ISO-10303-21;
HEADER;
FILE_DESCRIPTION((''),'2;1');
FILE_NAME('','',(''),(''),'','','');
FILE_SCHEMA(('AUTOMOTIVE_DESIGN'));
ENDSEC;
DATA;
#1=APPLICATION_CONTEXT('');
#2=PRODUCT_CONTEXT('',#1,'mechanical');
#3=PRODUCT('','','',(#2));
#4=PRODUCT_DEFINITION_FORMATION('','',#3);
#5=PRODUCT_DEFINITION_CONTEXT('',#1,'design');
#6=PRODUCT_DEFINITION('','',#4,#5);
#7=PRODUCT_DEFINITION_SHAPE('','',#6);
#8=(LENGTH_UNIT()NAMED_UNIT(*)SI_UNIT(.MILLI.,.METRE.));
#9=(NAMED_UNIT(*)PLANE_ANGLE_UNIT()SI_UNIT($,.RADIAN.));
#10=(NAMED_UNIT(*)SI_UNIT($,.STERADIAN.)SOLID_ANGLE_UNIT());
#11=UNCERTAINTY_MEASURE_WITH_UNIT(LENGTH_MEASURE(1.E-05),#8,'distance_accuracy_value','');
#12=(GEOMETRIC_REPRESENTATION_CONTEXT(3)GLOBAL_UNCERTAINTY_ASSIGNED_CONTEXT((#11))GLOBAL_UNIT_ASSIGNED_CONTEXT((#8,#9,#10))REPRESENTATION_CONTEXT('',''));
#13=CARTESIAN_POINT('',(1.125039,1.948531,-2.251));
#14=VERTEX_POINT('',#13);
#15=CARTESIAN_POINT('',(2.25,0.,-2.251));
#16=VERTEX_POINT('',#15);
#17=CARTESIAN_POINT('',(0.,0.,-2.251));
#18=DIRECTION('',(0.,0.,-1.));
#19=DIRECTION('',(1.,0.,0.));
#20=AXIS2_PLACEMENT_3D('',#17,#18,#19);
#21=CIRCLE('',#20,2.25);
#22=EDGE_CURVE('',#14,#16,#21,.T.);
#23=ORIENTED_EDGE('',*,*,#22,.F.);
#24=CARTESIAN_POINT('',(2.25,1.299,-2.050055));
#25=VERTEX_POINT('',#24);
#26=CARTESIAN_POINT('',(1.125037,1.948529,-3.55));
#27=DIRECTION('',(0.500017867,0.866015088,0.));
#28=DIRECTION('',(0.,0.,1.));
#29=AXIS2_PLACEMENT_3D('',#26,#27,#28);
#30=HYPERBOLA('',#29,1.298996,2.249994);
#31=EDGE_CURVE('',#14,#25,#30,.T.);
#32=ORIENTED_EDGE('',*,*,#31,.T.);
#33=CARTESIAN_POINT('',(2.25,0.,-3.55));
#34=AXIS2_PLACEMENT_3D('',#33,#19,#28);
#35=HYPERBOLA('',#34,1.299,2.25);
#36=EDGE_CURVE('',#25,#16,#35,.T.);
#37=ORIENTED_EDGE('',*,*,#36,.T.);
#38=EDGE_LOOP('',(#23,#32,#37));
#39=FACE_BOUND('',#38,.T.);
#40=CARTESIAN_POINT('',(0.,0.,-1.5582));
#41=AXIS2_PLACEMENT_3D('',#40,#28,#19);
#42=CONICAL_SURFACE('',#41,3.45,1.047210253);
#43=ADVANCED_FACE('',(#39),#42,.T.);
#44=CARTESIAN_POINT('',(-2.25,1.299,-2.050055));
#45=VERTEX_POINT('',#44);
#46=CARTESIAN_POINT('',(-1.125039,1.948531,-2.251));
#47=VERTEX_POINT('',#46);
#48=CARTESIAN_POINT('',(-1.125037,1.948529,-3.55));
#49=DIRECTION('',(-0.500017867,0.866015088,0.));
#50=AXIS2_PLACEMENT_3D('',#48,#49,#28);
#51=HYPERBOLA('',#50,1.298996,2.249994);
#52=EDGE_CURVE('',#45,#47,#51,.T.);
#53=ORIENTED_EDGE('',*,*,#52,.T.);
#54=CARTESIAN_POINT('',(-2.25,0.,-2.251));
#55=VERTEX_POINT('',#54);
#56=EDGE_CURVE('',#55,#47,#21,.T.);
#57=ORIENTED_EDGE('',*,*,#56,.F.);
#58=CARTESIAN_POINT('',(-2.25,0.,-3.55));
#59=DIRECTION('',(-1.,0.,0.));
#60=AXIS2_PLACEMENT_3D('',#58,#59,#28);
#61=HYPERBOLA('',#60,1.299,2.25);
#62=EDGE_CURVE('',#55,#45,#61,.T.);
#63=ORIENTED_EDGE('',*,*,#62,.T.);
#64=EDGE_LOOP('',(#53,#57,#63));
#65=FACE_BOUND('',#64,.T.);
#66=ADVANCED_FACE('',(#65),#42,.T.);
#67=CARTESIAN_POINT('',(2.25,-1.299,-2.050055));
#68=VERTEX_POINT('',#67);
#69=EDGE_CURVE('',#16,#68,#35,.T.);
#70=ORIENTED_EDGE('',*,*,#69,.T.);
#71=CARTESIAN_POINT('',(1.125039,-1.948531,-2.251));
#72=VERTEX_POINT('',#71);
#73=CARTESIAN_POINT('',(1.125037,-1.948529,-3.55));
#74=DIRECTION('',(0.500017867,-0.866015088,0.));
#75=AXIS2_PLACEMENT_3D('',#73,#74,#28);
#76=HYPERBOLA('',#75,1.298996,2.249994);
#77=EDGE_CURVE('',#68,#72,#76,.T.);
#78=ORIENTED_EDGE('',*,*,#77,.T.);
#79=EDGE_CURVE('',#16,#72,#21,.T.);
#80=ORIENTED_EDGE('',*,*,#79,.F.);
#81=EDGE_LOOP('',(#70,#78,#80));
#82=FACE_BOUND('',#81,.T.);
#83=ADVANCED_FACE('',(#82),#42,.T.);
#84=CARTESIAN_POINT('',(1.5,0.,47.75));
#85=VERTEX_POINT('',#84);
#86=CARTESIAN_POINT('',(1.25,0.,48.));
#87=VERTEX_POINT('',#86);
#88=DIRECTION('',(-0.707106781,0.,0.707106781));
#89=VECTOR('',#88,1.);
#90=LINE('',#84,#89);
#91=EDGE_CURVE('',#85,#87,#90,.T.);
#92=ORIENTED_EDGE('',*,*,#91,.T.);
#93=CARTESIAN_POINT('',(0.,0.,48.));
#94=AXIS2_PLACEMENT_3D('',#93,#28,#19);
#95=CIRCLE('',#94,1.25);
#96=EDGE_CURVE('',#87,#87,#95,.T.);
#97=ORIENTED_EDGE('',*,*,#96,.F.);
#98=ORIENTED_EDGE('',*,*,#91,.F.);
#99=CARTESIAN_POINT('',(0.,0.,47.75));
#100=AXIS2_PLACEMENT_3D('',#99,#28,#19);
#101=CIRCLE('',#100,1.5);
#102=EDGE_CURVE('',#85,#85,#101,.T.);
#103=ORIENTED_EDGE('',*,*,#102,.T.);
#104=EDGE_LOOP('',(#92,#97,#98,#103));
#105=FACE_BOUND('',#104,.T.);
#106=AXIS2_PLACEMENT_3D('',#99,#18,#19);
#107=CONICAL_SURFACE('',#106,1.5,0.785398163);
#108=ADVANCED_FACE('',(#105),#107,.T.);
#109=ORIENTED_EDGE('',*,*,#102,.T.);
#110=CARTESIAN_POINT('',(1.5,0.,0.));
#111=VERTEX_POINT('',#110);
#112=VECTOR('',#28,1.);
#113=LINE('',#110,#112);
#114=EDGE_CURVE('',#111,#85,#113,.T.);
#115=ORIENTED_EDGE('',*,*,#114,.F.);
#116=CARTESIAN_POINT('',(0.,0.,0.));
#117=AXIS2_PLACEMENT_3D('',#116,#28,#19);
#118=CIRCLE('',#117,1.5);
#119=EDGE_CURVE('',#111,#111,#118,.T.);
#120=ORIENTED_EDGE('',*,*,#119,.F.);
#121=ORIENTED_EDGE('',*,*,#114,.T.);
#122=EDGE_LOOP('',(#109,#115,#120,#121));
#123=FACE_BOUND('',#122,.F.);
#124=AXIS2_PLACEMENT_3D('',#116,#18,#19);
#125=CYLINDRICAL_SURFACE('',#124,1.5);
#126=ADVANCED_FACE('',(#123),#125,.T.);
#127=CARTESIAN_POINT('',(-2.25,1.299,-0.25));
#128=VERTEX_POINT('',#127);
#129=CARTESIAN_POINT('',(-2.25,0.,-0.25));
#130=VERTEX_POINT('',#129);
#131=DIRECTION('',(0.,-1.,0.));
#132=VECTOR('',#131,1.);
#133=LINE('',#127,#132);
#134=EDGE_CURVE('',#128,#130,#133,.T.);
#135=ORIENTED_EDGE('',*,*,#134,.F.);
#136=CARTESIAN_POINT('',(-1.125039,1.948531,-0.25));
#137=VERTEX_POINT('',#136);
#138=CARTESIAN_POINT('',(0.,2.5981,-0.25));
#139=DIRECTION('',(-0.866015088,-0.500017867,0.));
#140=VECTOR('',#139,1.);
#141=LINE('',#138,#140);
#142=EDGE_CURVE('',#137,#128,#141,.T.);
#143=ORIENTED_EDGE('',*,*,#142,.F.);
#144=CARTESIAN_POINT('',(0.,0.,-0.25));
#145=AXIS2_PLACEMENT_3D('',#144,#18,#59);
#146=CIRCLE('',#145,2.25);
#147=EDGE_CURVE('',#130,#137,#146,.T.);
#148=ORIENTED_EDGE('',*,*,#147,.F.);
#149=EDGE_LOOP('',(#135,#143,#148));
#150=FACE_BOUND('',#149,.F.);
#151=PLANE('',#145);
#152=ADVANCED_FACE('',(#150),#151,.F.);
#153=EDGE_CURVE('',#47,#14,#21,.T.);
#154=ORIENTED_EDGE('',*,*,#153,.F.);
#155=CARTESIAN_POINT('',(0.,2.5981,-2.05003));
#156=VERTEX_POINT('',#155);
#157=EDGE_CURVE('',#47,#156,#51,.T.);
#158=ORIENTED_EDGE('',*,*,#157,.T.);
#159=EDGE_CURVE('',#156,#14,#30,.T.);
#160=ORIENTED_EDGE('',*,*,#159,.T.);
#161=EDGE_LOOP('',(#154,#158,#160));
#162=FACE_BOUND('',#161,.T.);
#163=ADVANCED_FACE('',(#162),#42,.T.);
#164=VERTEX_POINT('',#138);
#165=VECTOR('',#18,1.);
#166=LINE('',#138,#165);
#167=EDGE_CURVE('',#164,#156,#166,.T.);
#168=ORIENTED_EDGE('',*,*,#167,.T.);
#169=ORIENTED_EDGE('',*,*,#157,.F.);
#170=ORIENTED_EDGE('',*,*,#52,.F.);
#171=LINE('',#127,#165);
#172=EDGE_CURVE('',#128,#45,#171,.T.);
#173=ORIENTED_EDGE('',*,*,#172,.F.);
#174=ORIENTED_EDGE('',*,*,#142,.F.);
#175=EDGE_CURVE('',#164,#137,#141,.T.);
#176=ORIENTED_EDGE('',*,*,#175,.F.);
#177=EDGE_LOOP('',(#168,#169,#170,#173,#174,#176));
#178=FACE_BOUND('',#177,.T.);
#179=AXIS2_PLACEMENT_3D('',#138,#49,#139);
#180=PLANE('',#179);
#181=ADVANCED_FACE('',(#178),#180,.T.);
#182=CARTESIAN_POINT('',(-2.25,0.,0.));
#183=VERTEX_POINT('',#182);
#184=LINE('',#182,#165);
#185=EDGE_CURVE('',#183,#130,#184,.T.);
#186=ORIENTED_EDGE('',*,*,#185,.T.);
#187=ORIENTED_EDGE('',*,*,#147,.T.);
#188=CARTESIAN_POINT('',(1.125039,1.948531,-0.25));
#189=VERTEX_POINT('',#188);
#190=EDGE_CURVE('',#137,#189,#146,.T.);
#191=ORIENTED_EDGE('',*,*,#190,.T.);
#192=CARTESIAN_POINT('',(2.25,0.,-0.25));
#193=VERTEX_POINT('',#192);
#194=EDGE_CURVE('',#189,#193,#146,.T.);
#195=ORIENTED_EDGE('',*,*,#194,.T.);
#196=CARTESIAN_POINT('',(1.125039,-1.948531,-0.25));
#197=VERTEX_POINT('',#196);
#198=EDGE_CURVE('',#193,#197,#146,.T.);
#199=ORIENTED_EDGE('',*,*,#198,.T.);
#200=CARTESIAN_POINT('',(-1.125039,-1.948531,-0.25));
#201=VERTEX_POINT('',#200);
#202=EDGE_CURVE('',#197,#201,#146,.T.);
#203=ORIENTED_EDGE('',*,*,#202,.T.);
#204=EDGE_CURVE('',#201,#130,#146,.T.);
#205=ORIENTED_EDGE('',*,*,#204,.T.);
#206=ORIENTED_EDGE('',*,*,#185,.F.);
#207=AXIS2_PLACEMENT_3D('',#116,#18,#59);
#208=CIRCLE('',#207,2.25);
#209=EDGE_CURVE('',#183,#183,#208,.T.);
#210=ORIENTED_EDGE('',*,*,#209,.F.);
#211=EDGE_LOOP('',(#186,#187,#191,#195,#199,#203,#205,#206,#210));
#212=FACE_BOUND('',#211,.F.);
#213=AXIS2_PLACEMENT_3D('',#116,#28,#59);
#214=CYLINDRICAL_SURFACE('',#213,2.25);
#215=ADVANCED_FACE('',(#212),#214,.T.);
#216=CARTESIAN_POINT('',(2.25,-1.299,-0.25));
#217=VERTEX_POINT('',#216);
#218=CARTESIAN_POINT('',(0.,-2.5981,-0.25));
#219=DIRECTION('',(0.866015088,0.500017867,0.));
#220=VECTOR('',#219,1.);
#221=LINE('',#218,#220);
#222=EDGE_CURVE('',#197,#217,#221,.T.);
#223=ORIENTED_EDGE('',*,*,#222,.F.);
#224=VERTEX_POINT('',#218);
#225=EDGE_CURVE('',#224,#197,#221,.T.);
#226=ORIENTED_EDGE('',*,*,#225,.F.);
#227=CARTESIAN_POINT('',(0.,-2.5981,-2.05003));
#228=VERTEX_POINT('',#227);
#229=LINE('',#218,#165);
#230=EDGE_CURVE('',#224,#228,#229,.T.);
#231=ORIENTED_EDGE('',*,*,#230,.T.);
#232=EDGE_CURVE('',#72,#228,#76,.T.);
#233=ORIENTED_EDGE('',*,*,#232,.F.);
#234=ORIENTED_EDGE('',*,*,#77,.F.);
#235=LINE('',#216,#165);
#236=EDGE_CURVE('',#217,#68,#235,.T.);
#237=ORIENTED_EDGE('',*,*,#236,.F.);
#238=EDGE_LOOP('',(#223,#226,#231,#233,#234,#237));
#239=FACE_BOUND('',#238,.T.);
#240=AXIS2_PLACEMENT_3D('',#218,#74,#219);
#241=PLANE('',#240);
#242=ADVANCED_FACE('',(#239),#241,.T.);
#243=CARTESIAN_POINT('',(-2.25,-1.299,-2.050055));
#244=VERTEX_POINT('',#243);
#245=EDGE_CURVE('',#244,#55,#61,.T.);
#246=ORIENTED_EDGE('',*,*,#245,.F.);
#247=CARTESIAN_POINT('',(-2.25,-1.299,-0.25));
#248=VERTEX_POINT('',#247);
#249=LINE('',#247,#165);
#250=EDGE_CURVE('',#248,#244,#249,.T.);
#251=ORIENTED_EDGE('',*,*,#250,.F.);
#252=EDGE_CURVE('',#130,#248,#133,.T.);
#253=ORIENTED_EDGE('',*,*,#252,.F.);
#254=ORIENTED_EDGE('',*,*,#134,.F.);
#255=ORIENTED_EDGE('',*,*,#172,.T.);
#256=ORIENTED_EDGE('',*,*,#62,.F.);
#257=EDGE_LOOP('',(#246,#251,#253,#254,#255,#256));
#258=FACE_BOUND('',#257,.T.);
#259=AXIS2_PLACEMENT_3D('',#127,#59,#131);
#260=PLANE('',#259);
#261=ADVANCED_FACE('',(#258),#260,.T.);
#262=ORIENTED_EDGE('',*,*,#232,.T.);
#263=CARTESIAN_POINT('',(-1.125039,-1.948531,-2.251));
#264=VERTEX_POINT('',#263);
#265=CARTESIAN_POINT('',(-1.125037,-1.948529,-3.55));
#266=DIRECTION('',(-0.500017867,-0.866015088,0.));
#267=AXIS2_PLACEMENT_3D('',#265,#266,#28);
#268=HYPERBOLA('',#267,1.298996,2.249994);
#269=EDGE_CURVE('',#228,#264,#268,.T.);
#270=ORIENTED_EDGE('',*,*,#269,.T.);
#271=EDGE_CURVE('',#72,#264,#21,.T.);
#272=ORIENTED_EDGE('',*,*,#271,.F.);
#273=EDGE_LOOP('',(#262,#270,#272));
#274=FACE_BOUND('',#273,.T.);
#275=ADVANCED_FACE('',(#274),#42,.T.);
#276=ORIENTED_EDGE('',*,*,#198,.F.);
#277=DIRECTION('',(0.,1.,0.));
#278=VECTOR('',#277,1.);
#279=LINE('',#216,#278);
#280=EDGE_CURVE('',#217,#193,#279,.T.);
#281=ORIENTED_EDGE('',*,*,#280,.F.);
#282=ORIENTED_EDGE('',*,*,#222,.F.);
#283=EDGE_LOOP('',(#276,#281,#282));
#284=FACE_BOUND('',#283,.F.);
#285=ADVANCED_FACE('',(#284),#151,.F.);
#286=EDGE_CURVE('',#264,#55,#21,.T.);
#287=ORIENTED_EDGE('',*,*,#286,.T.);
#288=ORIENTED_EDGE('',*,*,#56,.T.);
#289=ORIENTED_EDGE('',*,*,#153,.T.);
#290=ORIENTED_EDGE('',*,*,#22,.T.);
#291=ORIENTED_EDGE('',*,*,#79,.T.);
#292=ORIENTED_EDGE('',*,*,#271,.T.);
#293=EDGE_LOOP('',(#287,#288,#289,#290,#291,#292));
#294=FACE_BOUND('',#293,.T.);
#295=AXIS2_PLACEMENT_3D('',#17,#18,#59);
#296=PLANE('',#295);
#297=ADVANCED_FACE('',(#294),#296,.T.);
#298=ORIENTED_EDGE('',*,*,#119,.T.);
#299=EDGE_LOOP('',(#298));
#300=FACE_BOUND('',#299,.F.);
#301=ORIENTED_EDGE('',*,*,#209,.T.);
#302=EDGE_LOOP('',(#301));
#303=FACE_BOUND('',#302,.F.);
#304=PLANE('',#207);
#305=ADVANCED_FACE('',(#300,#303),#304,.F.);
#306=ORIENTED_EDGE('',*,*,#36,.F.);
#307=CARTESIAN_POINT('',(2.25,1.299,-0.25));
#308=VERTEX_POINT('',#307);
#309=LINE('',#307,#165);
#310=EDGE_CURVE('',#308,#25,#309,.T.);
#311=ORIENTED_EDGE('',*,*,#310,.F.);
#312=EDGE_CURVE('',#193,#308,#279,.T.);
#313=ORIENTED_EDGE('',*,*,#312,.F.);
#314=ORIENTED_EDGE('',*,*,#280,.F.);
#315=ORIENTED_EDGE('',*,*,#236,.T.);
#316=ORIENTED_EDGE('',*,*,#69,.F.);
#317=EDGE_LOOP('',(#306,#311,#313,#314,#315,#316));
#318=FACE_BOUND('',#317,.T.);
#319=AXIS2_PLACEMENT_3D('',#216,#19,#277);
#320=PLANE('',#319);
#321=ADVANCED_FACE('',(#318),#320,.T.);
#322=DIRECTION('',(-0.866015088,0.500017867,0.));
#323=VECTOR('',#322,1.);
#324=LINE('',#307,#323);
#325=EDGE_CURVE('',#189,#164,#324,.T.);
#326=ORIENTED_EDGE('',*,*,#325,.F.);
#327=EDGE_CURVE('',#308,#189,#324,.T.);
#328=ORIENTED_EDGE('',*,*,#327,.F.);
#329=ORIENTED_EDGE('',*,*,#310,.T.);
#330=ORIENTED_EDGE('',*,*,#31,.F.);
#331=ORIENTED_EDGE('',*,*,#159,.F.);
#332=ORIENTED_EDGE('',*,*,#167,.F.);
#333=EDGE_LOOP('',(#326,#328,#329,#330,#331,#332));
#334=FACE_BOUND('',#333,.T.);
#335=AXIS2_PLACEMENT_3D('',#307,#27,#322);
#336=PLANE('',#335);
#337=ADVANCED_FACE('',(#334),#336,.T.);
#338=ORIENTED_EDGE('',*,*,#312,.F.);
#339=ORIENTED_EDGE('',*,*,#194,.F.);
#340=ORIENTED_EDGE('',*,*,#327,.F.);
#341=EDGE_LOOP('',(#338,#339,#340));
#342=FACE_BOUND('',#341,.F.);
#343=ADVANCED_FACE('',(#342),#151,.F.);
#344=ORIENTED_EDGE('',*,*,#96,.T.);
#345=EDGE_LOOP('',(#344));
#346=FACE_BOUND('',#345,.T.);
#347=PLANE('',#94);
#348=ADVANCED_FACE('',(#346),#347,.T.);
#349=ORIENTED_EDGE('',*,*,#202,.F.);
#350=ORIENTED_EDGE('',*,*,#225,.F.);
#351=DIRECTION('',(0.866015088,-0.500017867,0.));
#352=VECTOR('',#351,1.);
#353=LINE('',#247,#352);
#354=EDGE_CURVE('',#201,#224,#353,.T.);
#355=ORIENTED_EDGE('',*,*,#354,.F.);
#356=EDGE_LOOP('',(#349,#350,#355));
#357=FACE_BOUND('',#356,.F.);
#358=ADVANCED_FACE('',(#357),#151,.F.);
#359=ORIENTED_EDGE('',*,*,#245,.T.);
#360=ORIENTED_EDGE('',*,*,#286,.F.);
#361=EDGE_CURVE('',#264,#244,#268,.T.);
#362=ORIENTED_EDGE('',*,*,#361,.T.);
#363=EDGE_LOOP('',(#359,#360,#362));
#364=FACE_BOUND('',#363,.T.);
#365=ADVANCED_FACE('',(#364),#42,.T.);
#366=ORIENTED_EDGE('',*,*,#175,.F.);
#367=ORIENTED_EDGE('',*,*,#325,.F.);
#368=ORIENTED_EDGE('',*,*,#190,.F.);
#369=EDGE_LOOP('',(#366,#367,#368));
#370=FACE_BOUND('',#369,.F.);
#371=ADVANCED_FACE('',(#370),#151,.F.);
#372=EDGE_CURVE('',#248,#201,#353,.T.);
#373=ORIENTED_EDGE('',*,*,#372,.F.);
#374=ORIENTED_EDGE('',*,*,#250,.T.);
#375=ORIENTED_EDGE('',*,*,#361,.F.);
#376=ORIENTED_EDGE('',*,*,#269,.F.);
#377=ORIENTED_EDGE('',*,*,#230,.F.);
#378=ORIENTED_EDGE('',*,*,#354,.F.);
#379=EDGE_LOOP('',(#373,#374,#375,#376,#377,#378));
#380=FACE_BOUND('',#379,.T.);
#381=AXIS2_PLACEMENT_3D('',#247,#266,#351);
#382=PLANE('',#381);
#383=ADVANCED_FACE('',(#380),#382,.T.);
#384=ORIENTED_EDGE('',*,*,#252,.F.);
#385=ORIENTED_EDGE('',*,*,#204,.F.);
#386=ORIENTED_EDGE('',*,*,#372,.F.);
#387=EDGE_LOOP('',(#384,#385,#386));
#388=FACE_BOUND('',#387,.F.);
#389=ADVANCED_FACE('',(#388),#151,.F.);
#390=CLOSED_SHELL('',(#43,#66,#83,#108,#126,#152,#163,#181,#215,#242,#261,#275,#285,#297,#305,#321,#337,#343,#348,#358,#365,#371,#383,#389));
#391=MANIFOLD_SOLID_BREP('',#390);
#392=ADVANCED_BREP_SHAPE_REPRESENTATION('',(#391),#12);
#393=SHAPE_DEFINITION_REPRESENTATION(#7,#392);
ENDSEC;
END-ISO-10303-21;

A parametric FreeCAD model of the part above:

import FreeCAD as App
import Part
import Sketcher

V = App.Vector
Q = App.Units.Quantity


def edges_at(feature, points):
    """Names of the edges that pass closest to the given points."""
    edges = feature.Shape.Edges
    near = lambda p: min(range(len(edges)), key=lambda i: edges[i].distToShape(Part.Vertex(*p))[0])
    return sorted({f"Edge{near(p) + 1}" for p in points})


def add_polygon(sketch, points):
    """Adds a closed chain of lines whose ends are joined by coincident constraints."""
    first, n = sketch.GeometryCount, len(points)
    for a, b in zip(points, points[1:] + points[:1]):
        sketch.addGeometry(Part.LineSegment(App.Vector(*a, 0), App.Vector(*b, 0)), False)
    for i in range(n):
        sketch.addConstraint(Sketcher.Constraint("Coincident", first + i, 2, first + (i + 1) % n, 1))

doc = App.newDocument("Part")
body = doc.addObject("PartDesign::Body", "Body")

# Sketch on XY plane
sketch1 = doc.addObject("Sketcher::SketchObject", "Sketch")
body.addObject(sketch1)
sketch1.AttachmentSupport = (doc.XY_Plane, [""])
sketch1.MapMode = "FlatFace"
sketch1.addGeometry(Part.Circle(V(0, 0, 0), V(0, 0, 1), 1.5), False)
sketch1.addConstraint(Sketcher.Constraint("Coincident", 0, 3, -1, 1))
sketch1.addConstraint(Sketcher.Constraint("Diameter", 0, 3.0))
pad1 = doc.addObject("PartDesign::Pad", "Pad")
body.addObject(pad1)
pad1.Profile = sketch1
pad1.Length = 48

# Sketch on XY plane
sketch2 = doc.addObject("Sketcher::SketchObject", "Sketch001")
body.addObject(sketch2)
sketch2.AttachmentSupport = (doc.XY_Plane, [""])
sketch2.MapMode = "FlatFace"
sketch2.addGeometry(Part.Circle(V(0, 0, 0), V(0, 0, 1), 2.25), False)
sketch2.addConstraint(Sketcher.Constraint("Coincident", 0, 3, -1, 1))
sketch2.addConstraint(Sketcher.Constraint("Diameter", 0, 4.5))
pad2 = doc.addObject("PartDesign::Pad", "Pad001")
body.addObject(pad2)
pad2.Profile = sketch2
pad2.Length = 0.25
pad2.Reversed = True

# Sketch on XY plane
sketch3 = doc.addObject("Sketcher::SketchObject", "Sketch002")
body.addObject(sketch3)
sketch3.AttachmentSupport = (doc.XY_Plane, [""])
sketch3.MapMode = "FlatFace"
sketch3.AttachmentOffset = App.Placement(V(0, 0, -0.25), App.Rotation())
add_polygon(sketch3, [(0, 2.5981), (2.25, 1.299), (2.25, -1.299), (0, -2.5981), (-2.25, -1.299), (-2.25, 1.299)])  # lines 0-5
sketch3.addConstraint(Sketcher.Constraint("Vertical", 1))
sketch3.addConstraint(Sketcher.Constraint("Vertical", 4))
sketch3.addConstraint(Sketcher.Constraint("Symmetric", 0, 2, 3, 2, -1, 1))
sketch3.addConstraint(Sketcher.Constraint("Symmetric", 2, 2, 5, 2, -1, 1))
sketch3.addConstraint(Sketcher.Constraint("PointOnObject", 2, 2, -2))
sketch3.addConstraint(Sketcher.Constraint("Parallel", 2, 5))
sketch3.addConstraint(Sketcher.Constraint("Horizontal", 1, 2, 3, 2))
sketch3.addConstraint(Sketcher.Constraint("Angle", 0, Q("-30.0012 deg")))
sketch3.addConstraint(Sketcher.Constraint("DistanceX", 3, 2, 1, 2, 4.5))
sketch3.addConstraint(Sketcher.Constraint("DistanceY", 1, 2, 1, 1, 2.598))
pad3 = doc.addObject("PartDesign::Pad", "Pad002")
body.addObject(pad3)
pad3.Profile = sketch3
pad3.Length = 2.001
pad3.Reversed = True
doc.recompute()

chamfer = doc.addObject("PartDesign::Chamfer", "Chamfer")
body.addObject(chamfer)
chamfer.Base = (pad3, edges_at(pad3, [(-1.5, 0, 48)]))
chamfer.Size = 0.25

# Sketch on XZ plane
sketch4 = doc.addObject("Sketcher::SketchObject", "Sketch003")
body.addObject(sketch4)
sketch4.AttachmentSupport = (doc.XZ_Plane, [""])
sketch4.MapMode = "FlatFace"
add_polygon(sketch4, [(3.45, -2.251), (2.25, -2.251), (3.45, -1.5582)])  # lines 0-2
sketch4.addConstraint(Sketcher.Constraint("Horizontal", 0))
sketch4.addConstraint(Sketcher.Constraint("Vertical", 2))
sketch4.addConstraint(Sketcher.Constraint("DistanceX", 0, 2, 0, 1, 1.2))
sketch4.addConstraint(Sketcher.Constraint("Angle", 1, Q("29.9993 deg")))
sketch4.addConstraint(Sketcher.Constraint("DistanceX", -1, 1, 0, 2, 2.25))
sketch4.addConstraint(Sketcher.Constraint("DistanceY", 0, 2, -1, 1, 2.251))
groove = doc.addObject("PartDesign::Groove", "Groove")
body.addObject(groove)
groove.Profile = sketch4
groove.ReferenceAxis = (sketch4, ["V_Axis"])
groove.Angle = 360

doc.recompute()
